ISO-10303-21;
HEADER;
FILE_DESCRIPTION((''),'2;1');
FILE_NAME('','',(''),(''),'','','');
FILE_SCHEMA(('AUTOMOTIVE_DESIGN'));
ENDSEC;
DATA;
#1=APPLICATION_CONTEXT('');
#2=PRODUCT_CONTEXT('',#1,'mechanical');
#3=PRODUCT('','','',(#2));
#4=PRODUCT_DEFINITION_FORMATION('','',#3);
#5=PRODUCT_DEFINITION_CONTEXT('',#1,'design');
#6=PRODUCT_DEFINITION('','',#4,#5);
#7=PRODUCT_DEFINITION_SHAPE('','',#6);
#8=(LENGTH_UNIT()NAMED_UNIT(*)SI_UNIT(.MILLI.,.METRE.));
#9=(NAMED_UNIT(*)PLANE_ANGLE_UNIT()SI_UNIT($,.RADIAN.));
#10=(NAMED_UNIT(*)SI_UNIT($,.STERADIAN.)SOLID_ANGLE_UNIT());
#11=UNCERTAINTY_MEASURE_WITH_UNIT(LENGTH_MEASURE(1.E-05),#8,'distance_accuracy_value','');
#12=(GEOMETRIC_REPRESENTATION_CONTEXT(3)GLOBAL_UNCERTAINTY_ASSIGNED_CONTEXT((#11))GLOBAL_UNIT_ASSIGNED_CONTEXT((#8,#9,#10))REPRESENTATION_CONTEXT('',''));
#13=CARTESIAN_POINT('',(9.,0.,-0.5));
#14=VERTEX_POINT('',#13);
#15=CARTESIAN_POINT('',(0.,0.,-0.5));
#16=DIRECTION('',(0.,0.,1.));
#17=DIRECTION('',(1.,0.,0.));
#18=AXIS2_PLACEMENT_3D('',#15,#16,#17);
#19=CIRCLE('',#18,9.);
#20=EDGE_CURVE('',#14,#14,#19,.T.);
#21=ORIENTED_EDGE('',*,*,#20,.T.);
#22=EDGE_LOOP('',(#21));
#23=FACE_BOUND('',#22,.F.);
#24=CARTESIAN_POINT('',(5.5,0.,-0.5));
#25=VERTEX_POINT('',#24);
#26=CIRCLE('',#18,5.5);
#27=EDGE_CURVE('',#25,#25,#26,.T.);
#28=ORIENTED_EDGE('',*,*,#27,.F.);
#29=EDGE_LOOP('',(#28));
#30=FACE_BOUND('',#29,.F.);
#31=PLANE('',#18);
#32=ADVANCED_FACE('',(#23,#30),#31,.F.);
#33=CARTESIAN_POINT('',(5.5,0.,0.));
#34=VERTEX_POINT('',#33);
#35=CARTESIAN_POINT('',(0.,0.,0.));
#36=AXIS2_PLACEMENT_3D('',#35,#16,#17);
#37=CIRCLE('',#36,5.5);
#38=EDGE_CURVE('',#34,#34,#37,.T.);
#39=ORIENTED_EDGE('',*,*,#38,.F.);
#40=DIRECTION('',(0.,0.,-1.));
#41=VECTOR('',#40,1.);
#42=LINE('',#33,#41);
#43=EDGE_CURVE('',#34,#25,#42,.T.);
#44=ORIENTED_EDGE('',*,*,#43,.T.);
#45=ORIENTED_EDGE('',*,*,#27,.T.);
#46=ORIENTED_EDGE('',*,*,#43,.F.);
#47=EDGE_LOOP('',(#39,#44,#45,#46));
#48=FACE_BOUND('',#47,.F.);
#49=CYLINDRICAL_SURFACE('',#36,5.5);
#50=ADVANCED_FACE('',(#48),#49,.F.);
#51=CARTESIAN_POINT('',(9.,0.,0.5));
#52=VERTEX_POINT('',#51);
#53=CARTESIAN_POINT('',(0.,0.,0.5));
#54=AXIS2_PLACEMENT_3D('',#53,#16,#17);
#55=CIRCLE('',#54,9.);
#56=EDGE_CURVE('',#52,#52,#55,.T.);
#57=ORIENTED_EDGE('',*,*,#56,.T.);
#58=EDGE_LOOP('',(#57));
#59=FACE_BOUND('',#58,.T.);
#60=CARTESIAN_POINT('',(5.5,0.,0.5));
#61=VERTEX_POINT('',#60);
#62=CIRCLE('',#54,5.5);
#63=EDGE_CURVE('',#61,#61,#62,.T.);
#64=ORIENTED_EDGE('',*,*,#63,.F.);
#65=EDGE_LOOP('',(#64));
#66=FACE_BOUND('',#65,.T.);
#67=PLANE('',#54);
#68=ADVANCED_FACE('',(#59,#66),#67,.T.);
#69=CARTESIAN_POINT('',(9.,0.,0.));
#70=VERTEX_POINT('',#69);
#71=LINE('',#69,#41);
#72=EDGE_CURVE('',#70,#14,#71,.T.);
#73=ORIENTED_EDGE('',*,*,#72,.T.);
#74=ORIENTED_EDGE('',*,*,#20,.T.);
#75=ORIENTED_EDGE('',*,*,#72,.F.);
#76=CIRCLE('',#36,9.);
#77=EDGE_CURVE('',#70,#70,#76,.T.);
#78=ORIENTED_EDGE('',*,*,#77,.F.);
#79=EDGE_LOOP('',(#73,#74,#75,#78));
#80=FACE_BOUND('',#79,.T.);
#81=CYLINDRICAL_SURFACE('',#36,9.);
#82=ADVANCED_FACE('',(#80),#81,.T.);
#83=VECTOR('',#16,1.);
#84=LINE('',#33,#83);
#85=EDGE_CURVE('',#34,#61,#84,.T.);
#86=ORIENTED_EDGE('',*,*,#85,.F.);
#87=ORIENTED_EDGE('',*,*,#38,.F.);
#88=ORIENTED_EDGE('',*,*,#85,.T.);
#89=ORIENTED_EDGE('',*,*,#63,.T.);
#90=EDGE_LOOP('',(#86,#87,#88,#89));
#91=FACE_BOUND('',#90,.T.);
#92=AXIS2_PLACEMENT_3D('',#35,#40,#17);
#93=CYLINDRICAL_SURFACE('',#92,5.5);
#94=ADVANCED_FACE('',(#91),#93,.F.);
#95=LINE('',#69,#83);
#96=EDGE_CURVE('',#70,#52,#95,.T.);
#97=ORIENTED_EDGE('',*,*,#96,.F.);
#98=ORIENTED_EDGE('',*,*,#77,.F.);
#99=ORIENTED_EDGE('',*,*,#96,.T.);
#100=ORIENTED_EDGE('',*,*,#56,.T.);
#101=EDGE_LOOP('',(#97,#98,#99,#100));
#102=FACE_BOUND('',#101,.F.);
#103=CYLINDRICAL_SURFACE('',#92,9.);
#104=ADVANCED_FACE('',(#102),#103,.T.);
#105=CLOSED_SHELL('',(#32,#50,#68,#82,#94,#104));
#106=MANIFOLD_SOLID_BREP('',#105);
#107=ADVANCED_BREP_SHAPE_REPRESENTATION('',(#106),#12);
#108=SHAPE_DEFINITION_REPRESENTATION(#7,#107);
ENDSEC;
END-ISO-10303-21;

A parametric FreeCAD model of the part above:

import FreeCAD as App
import Part
import Sketcher
from FreeCAD import Vector

doc = App.newDocument("Part")
body = doc.addObject("PartDesign::Body", "Body")

sketch1 = body.newObject("Sketcher::SketchObject", "Sketch")
sketch1.AttachmentSupport = (doc.getObject("XY_Plane"), [""])
sketch1.MapMode = "FlatFace"
sketch1.addGeometry(Part.Circle(Vector(0, 0, 0), Vector(0, 0, 1), 9), False)
sketch1.addGeometry(Part.Circle(Vector(0, 0, 0), Vector(0, 0, 1), 6), False)
sketch1.addConstraint(Sketcher.Constraint("Coincident", 0, 3, -1, 1))
sketch1.addConstraint(Sketcher.Constraint("Coincident", 1, 3, -1, 1))
sketch1.addConstraint(Sketcher.Constraint("Diameter", 0, 18.0))
sketch1.addConstraint(Sketcher.Constraint("Diameter", 1, 11.0))
pad1 = body.newObject("PartDesign::Pad", "Pad")
pad1.Profile = sketch1
pad1.Length = 1
pad1.Midplane = True

doc.recompute()
